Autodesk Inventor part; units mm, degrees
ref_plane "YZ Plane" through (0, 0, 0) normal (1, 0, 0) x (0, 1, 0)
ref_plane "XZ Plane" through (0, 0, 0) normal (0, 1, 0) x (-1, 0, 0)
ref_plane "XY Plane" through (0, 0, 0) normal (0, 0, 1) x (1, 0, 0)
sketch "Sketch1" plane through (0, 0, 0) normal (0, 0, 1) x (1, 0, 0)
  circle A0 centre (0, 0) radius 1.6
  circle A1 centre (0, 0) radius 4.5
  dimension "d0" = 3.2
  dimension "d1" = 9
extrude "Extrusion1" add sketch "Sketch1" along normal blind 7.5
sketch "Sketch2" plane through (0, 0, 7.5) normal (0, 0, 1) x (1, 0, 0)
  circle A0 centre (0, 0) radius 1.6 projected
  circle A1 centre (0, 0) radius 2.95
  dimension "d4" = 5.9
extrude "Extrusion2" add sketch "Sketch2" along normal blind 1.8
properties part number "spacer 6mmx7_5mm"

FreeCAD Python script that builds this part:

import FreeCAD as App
import Part
import Sketcher

V = App.Vector
Q = App.Units.Quantity

doc = App.newDocument("Part")
body = doc.addObject("PartDesign::Body", "Body")

sketch1 = body.newObject("Sketcher::SketchObject", "Sketch")
sketch1.AttachmentSupport = (doc.getObject("XY_Plane"), [""])
sketch1.MapMode = "FlatFace"
sketch1.addGeometry([
    Part.Circle(V(0, 0, 0), V(0, 0, 1), 4.5),
    Part.Circle(V(0, 0, 0), V(0, 0, 1), 1.6),
], False)
sketch1.addConstraint([
    Sketcher.Constraint("Coincident", 0, 3, -1, 1),
    Sketcher.Constraint("Coincident", 1, 3, -1, 1),
    Sketcher.Constraint("Diameter", 0, Q("9 mm")),
    Sketcher.Constraint("Diameter", 1, Q("3.2 mm")),
])
pad1 = body.newObject("PartDesign::Pad", "Pad")
pad1.Profile = sketch1
pad1.Length = 7.5

sketch2 = body.newObject("Sketcher::SketchObject", "Sketch001")
sketch2.AttachmentSupport = (doc.getObject("XY_Plane"), [""])
sketch2.MapMode = "FlatFace"
sketch2.AttachmentOffset = App.Placement(V(0, 0, 7.5), App.Rotation())
sketch2.addGeometry([
    Part.Circle(V(0, 0, 0), V(0, 0, 1), 3),
    Part.Circle(V(0, 0, 0), V(0, 0, 1), 1.6),
], False)
sketch2.addConstraint([
    Sketcher.Constraint("Coincident", 0, 3, -1, 1),
    Sketcher.Constraint("Coincident", 1, 3, -1, 1),
    Sketcher.Constraint("Diameter", 0, Q("5.9 mm")),
    Sketcher.Constraint("Diameter", 1, Q("3.2 mm")),
])
pad2 = body.newObject("PartDesign::Pad", "Pad001")
pad2.Profile = sketch2
pad2.Length = 1.8

doc.recompute()
